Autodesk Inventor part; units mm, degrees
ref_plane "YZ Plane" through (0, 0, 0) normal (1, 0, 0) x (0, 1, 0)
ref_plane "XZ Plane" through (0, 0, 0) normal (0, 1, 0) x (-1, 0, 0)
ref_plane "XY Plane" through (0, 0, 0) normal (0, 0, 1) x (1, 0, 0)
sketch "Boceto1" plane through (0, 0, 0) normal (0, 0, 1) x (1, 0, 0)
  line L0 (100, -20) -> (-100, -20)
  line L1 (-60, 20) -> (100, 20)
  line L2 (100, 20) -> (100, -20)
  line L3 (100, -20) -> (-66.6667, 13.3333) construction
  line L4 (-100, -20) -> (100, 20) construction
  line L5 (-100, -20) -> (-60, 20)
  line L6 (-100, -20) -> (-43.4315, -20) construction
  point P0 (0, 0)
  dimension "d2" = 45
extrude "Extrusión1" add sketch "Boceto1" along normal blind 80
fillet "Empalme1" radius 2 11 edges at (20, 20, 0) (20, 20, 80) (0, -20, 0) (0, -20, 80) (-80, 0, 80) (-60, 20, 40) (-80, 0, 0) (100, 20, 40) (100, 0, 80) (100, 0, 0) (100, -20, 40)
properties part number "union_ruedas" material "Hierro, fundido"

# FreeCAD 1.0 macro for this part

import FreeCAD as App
import Part
import Sketcher

V = App.Vector


def edges_at(feature, points):
    """Names of the edges that pass closest to the given points."""
    edges = feature.Shape.Edges
    near = lambda p: min(range(len(edges)), key=lambda i: edges[i].distToShape(Part.Vertex(*p))[0])
    return sorted({f"Edge{near(p) + 1}" for p in points})

doc = App.newDocument("Part")
body = doc.addObject("PartDesign::Body", "Body")

# Sketch on XY plane
sketch1 = doc.addObject("Sketcher::SketchObject", "Sketch")
body.addObject(sketch1)
sketch1.AttachmentSupport = (doc.XY_Plane, [""])
sketch1.MapMode = "FlatFace"
sketch1.addGeometry(Part.LineSegment(V(-100, -20, 0), V(100, -20, 0)), False)
sketch1.addGeometry(Part.LineSegment(V(100, -20, 0), V(100, 20, 0)), False)
sketch1.addGeometry(Part.LineSegment(V(100, 20, 0), V(-60, 20, 0)), False)
sketch1.addGeometry(Part.LineSegment(V(-60, 20, 0), V(-100, -20, 0)), False)
sketch1.addConstraint(Sketcher.Constraint("Coincident", 0, 2, 1, 1))
sketch1.addConstraint(Sketcher.Constraint("Coincident", 1, 2, 2, 1))
sketch1.addConstraint(Sketcher.Constraint("Coincident", 2, 2, 3, 1))
sketch1.addConstraint(Sketcher.Constraint("Coincident", 3, 2, 0, 1))
sketch1.addConstraint(Sketcher.Constraint("Horizontal", 0))
sketch1.addConstraint(Sketcher.Constraint("Vertical", 1))
sketch1.addConstraint(Sketcher.Constraint("Horizontal", 2))
sketch1.addConstraint(Sketcher.Constraint("Symmetric", 1, 2, 3, 2, -1, 1))
sketch1.addConstraint(Sketcher.Constraint("DistanceX", 0, 1, 0, 2, 200.0))
sketch1.addConstraint(Sketcher.Constraint("DistanceX", 2, 2, 2, 1, 160.0))
sketch1.addConstraint(Sketcher.Constraint("DistanceY", 1, 1, 1, 2, 40.0))
pad1 = doc.addObject("PartDesign::Pad", "Pad")
body.addObject(pad1)
pad1.Profile = sketch1
pad1.Length = 80
doc.recompute()

fillet = doc.addObject("PartDesign::Fillet", "Fillet")
body.addObject(fillet)
fillet.Base = (pad1, edges_at(pad1, [
    (20, 20, 0),
    (20, 20, 80),
    (0, -20, 0),
    (0, -20, 80),
    (-80, 0, 80),
    (-60, 20, 40),
    (-80, 0, 0),
    (100, 20, 40),
    (100, 0, 80),
    (100, 0, 0),
    (100, -20, 40),
]))
fillet.Radius = 2

doc.recompute()
